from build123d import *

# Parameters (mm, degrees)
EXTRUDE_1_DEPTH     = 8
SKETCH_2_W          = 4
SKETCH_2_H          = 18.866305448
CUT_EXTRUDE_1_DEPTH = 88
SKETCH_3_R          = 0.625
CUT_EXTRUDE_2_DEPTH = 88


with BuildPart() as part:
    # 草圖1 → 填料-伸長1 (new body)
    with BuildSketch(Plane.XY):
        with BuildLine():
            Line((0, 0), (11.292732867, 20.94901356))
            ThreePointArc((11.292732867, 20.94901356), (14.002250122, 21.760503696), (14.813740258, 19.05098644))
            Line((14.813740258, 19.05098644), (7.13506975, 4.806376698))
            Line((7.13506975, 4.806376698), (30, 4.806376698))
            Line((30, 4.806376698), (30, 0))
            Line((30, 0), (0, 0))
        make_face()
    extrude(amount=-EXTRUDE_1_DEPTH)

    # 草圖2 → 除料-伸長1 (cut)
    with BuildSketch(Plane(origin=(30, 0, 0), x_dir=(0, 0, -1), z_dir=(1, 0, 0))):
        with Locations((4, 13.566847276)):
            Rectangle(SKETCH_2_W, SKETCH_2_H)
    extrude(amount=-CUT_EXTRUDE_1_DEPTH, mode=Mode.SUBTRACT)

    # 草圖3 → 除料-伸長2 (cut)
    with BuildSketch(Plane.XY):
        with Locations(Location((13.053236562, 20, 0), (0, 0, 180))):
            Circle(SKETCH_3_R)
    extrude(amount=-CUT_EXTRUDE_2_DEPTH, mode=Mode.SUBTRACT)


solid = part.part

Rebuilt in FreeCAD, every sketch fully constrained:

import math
import FreeCAD as App
import Part
import Sketcher
from FreeCAD import Vector
Q = App.Units.Quantity


def add_polygon(sketch, points):
    """Adds a closed chain of lines whose ends are joined by coincident constraints."""
    first, n = sketch.GeometryCount, len(points)
    for a, b in zip(points, points[1:] + points[:1]):
        sketch.addGeometry(Part.LineSegment(App.Vector(*a, 0), App.Vector(*b, 0)), False)
    for i in range(n):
        sketch.addConstraint(Sketcher.Constraint("Coincident", first + i, 2, first + (i + 1) % n, 1))

doc = App.newDocument("Part")
body = doc.addObject("PartDesign::Body", "Body")

sketch1 = body.newObject("Sketcher::SketchObject", "Sketch")
sketch1.AttachmentSupport = (doc.getObject("XY_Plane"), [""])
sketch1.MapMode = "FlatFace"
sketch1.addGeometry([
    Part.LineSegment(Vector(11.3, 20.9, 0), Vector(0, 0, 0)),
    Part.LineSegment(Vector(0, 0, 0), Vector(30, 0, 0)),
    Part.LineSegment(Vector(30, 0, 0), Vector(30, 4.8, 0)),
    Part.LineSegment(Vector(30, 4.8, 0), Vector(7.1, 4.8, 0)),
    Part.LineSegment(Vector(7.1, 4.8, 0), Vector(14.8, 19.1, 0)),
    Part.ArcOfCircle(Part.Circle(Vector(13.1, 20, 0), Vector(0, 0, 1), 2), math.radians(-28), math.radians(152)),
], False)
sketch1.addConstraint([
    Sketcher.Constraint("Coincident", 0, 2, 1, 1),
    Sketcher.Constraint("Coincident", 1, 2, 2, 1),
    Sketcher.Constraint("Coincident", 2, 2, 3, 1),
    Sketcher.Constraint("Coincident", 3, 2, 4, 1),
    Sketcher.Constraint("Tangent", 4, 2, 5, 1),
    Sketcher.Constraint("Tangent", 5, 2, 0, 1),
    Sketcher.Constraint("Horizontal", 1),
    Sketcher.Constraint("Vertical", 2),
    Sketcher.Constraint("Horizontal", 3),
    Sketcher.Constraint("Coincident", 0, 2, -1, 1),
    Sketcher.Constraint("Parallel", 0, 4),
    Sketcher.Constraint("Radius", 5, Q("2 mm")),
    Sketcher.Constraint("DistanceX", 1, 1, 1, 2, Q("30 mm")),
    Sketcher.Constraint("DistanceY", -1, 1, 5, 3, Q("20 mm")),
    Sketcher.Constraint("DistanceX", 3, 2, 3, 1, Q("22.86493 mm")),
    Sketcher.Constraint("DistanceY", 2, 1, 2, 2, Q("4.806377 mm")),
])
pad1 = body.newObject("PartDesign::Pad", "Pad")
pad1.Profile = sketch1
pad1.Length = 8
pad1.Reversed = True

sketch2 = body.newObject("Sketcher::SketchObject", "Sketch001")
sketch2.AttachmentSupport = (doc.getObject("YZ_Plane"), [""])
sketch2.MapMode = "FlatFace"
sketch2.AttachmentOffset = App.Placement(Vector(0, 0, 30), App.Rotation())
add_polygon(sketch2, [(23, -2), (4.1, -2), (4.1, -6), (23, -6)])
sketch2.addConstraint([
    Sketcher.Constraint("Horizontal", 0),
    Sketcher.Constraint("Vertical", 1),
    Sketcher.Constraint("Horizontal", 2),
    Sketcher.Constraint("Vertical", 3),
    Sketcher.Constraint("DistanceY", 1, 2, 1, 1, Q("4 mm")),
    Sketcher.Constraint("DistanceY", 0, 2, -1, 1, Q("2 mm")),
    Sketcher.Constraint("DistanceX", -1, 1, 2, 2, Q("23 mm")),
    Sketcher.Constraint("DistanceX", 0, 2, 0, 1, Q("18.866305 mm")),
])
pocket1 = body.newObject("PartDesign::Pocket", "Pocket")
pocket1.Profile = sketch2
pocket1.Length = 88

sketch3 = body.newObject("Sketcher::SketchObject", "Sketch002")
sketch3.AttachmentSupport = (doc.getObject("XY_Plane"), [""])
sketch3.MapMode = "FlatFace"
sketch3.addGeometry(Part.Circle(Vector(13.1, 20, 0), Vector(0, 0, 1), 0.6), False)
sketch3.addConstraint([
    Sketcher.Constraint("Diameter", 0, Q("1.25 mm")),
    Sketcher.Constraint("DistanceY", -1, 1, 0, 3, Q("20 mm")),
    Sketcher.Constraint("DistanceX", -1, 1, 0, 3, Q("13.053237 mm")),
])
pocket2 = body.newObject("PartDesign::Pocket", "Pocket001")
pocket2.Profile = sketch3
pocket2.Length = 88

doc.recompute()
